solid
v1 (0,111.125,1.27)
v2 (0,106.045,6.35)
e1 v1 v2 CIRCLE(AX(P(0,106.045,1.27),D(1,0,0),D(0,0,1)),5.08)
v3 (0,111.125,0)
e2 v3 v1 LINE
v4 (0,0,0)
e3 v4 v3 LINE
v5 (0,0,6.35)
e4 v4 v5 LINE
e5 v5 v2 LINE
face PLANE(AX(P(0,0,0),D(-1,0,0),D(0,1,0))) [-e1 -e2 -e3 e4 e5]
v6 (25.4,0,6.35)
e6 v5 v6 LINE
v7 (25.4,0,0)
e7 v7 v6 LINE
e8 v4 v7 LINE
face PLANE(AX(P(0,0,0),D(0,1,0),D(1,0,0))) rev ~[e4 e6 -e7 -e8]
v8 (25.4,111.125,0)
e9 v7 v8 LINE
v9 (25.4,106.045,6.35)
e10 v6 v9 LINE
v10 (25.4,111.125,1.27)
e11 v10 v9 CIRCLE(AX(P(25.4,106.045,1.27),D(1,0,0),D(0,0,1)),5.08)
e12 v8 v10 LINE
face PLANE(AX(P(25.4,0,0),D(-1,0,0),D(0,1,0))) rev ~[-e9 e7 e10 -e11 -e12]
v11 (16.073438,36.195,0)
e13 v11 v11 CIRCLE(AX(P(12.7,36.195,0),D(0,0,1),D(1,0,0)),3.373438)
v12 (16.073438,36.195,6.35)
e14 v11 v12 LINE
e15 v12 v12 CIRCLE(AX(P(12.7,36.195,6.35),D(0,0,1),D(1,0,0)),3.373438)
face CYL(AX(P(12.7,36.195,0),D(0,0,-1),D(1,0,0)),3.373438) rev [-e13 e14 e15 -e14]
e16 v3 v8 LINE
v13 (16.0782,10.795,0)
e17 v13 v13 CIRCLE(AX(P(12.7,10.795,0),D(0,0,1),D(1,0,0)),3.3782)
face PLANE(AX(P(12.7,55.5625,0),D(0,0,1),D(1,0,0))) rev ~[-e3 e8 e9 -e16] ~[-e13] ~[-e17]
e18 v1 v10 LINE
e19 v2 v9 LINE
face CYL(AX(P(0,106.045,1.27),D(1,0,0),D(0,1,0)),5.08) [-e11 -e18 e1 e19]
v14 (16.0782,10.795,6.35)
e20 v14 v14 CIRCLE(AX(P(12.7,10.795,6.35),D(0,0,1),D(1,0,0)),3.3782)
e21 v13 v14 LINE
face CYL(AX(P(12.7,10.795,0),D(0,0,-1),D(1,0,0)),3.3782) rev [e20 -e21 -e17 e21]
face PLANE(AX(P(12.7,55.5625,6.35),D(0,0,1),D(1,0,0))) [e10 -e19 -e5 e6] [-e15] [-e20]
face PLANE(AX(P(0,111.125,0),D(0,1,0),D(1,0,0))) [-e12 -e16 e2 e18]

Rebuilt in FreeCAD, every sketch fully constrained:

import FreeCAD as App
import Part
import Sketcher
Q = App.Units.Quantity


def edges_at(feature, points):
    """Names of the edges that pass closest to the given points."""
    edges = feature.Shape.Edges
    near = lambda p: min(range(len(edges)), key=lambda i: edges[i].distToShape(Part.Vertex(*p))[0])
    return sorted({f"Edge{near(p) + 1}" for p in points})


def add_polygon(sketch, points):
    """Adds a closed chain of lines whose ends are joined by coincident constraints."""
    first, n = sketch.GeometryCount, len(points)
    for a, b in zip(points, points[1:] + points[:1]):
        sketch.addGeometry(Part.LineSegment(App.Vector(*a, 0), App.Vector(*b, 0)), False)
    for i in range(n):
        sketch.addConstraint(Sketcher.Constraint("Coincident", first + i, 2, first + (i + 1) % n, 1))

doc = App.newDocument("Part")
body = doc.addObject("PartDesign::Body", "Body")

# Sketch on XY plane
sketch1 = body.newObject("Sketcher::SketchObject", "Sketch")
sketch1.AttachmentSupport = (doc.getObject("XY_Plane"), [""])
sketch1.MapMode = "FlatFace"
add_polygon(sketch1, [(0, 111.125), (0, 0), (25.4, 0), (25.4, 111.125)])  # lines 0-3
sketch1.addGeometry(Part.Circle(App.Vector(12.7, 10.795, 0), App.Vector(0, 0, 1), 3.3782), False)  # 4
sketch1.addGeometry(Part.Circle(App.Vector(12.7, 36.195, 0), App.Vector(0, 0, 1), 3.373438), False)  # 5
sketch1.addConstraint([
    Sketcher.Constraint("Vertical", 0),
    Sketcher.Constraint("Horizontal", 1),
    Sketcher.Constraint("Vertical", 2),
    Sketcher.Constraint("Horizontal", 3),
    Sketcher.Constraint("Coincident", 0, 2, -1, 1),
    Sketcher.Constraint("Vertical", 4, 3, 5, 3),
    Sketcher.Constraint("DistanceX", 1, 1, 1, 2, Q("1 in")),
    Sketcher.Constraint("Diameter", 4, Q("0.266 in")),
    Sketcher.Constraint("Diameter", 5, Q("0.265625 in")),
    Sketcher.Constraint("DistanceY", 4, 3, 5, 3, Q("1 in")),
    Sketcher.Constraint("DistanceX", -1, 1, 4, 3, Q("0.5 in")),
    Sketcher.Constraint("DistanceY", 0, 2, 0, 1, Q("4.375 in")),
    Sketcher.Constraint("DistanceY", 5, 3, 2, 2, Q("2.95 in")),
])
pad1 = body.newObject("PartDesign::Pad", "Pad")
pad1.Profile = sketch1
pad1.Length = Q("0.25 in")
doc.recompute()

fillet = body.newObject("PartDesign::Fillet", "Fillet")
fillet.Base = (pad1, edges_at(pad1, [(12.7, 111.125, 6.35)]))
fillet.Radius = Q("0.2 in")

doc.recompute()
